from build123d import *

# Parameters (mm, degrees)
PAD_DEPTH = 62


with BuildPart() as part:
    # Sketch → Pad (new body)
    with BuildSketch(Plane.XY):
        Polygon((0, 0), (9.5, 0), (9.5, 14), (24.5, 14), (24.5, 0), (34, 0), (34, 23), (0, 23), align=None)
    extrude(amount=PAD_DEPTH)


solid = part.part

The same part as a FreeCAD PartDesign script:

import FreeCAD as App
import Part
import Sketcher
from FreeCAD import Vector

doc = App.newDocument("Part")
body = doc.addObject("PartDesign::Body", "Body")

# Sketch on XY plane
sketch1 = doc.addObject("Sketcher::SketchObject", "Sketch")
body.addObject(sketch1)
sketch1.AttachmentSupport = (doc.XY_Plane, [""])
sketch1.MapMode = "FlatFace"
sketch1.addGeometry([
    Part.LineSegment(Vector(0, 0, 0), Vector(10, 0, 0)),  # 0
    Part.LineSegment(Vector(10, 0, 0), Vector(10, 14, 0)),  # 1
    Part.LineSegment(Vector(10, 14, 0), Vector(24, 14, 0)),  # 2
    Part.LineSegment(Vector(24, 14, 0), Vector(24, 0, 0)),  # 3
    Part.LineSegment(Vector(24, 0, 0), Vector(34, 0, 0)),  # 4
    Part.LineSegment(Vector(34, 0, 0), Vector(34, 23, 0)),  # 5
    Part.LineSegment(Vector(34, 23, 0), Vector(0, 23, 0)),  # 6
    Part.LineSegment(Vector(0, 23, 0), Vector(0, 0, 0)),  # 7
], False)
sketch1.addConstraint([
    Sketcher.Constraint("Coincident", 0, 2, 1, 1),
    Sketcher.Constraint("Coincident", 1, 2, 2, 1),
    Sketcher.Constraint("Coincident", 2, 2, 3, 1),
    Sketcher.Constraint("Coincident", 3, 2, 4, 1),
    Sketcher.Constraint("Coincident", 4, 2, 5, 1),
    Sketcher.Constraint("Coincident", 5, 2, 6, 1),
    Sketcher.Constraint("Coincident", 6, 2, 7, 1),
    Sketcher.Constraint("Coincident", 7, 2, 0, 1),
    Sketcher.Constraint("Horizontal", 0),
    Sketcher.Constraint("Vertical", 1),
    Sketcher.Constraint("Horizontal", 2),
    Sketcher.Constraint("Vertical", 3),
    Sketcher.Constraint("Horizontal", 4),
    Sketcher.Constraint("Vertical", 5),
    Sketcher.Constraint("Horizontal", 6),
    Sketcher.Constraint("Vertical", 7),
    Sketcher.Constraint("Coincident", 7, 2, -1, 1),
    Sketcher.Constraint("PointOnObject", 3, 2, -1),
    Sketcher.Constraint("Equal", 0, 4),
    Sketcher.Constraint("DistanceX", 2, 1, 2, 2, 15.0),
    Sketcher.Constraint("DistanceX", 6, 2, 6, 1, 34.0),
    Sketcher.Constraint("DistanceY", 1, 1, 1, 2, 14.0),
    Sketcher.Constraint("DistanceY", 5, 1, 5, 2, 23.0),
])
pad1 = doc.addObject("PartDesign::Pad", "Pad")
body.addObject(pad1)
pad1.Profile = sketch1
pad1.Length = 62

doc.recompute()
